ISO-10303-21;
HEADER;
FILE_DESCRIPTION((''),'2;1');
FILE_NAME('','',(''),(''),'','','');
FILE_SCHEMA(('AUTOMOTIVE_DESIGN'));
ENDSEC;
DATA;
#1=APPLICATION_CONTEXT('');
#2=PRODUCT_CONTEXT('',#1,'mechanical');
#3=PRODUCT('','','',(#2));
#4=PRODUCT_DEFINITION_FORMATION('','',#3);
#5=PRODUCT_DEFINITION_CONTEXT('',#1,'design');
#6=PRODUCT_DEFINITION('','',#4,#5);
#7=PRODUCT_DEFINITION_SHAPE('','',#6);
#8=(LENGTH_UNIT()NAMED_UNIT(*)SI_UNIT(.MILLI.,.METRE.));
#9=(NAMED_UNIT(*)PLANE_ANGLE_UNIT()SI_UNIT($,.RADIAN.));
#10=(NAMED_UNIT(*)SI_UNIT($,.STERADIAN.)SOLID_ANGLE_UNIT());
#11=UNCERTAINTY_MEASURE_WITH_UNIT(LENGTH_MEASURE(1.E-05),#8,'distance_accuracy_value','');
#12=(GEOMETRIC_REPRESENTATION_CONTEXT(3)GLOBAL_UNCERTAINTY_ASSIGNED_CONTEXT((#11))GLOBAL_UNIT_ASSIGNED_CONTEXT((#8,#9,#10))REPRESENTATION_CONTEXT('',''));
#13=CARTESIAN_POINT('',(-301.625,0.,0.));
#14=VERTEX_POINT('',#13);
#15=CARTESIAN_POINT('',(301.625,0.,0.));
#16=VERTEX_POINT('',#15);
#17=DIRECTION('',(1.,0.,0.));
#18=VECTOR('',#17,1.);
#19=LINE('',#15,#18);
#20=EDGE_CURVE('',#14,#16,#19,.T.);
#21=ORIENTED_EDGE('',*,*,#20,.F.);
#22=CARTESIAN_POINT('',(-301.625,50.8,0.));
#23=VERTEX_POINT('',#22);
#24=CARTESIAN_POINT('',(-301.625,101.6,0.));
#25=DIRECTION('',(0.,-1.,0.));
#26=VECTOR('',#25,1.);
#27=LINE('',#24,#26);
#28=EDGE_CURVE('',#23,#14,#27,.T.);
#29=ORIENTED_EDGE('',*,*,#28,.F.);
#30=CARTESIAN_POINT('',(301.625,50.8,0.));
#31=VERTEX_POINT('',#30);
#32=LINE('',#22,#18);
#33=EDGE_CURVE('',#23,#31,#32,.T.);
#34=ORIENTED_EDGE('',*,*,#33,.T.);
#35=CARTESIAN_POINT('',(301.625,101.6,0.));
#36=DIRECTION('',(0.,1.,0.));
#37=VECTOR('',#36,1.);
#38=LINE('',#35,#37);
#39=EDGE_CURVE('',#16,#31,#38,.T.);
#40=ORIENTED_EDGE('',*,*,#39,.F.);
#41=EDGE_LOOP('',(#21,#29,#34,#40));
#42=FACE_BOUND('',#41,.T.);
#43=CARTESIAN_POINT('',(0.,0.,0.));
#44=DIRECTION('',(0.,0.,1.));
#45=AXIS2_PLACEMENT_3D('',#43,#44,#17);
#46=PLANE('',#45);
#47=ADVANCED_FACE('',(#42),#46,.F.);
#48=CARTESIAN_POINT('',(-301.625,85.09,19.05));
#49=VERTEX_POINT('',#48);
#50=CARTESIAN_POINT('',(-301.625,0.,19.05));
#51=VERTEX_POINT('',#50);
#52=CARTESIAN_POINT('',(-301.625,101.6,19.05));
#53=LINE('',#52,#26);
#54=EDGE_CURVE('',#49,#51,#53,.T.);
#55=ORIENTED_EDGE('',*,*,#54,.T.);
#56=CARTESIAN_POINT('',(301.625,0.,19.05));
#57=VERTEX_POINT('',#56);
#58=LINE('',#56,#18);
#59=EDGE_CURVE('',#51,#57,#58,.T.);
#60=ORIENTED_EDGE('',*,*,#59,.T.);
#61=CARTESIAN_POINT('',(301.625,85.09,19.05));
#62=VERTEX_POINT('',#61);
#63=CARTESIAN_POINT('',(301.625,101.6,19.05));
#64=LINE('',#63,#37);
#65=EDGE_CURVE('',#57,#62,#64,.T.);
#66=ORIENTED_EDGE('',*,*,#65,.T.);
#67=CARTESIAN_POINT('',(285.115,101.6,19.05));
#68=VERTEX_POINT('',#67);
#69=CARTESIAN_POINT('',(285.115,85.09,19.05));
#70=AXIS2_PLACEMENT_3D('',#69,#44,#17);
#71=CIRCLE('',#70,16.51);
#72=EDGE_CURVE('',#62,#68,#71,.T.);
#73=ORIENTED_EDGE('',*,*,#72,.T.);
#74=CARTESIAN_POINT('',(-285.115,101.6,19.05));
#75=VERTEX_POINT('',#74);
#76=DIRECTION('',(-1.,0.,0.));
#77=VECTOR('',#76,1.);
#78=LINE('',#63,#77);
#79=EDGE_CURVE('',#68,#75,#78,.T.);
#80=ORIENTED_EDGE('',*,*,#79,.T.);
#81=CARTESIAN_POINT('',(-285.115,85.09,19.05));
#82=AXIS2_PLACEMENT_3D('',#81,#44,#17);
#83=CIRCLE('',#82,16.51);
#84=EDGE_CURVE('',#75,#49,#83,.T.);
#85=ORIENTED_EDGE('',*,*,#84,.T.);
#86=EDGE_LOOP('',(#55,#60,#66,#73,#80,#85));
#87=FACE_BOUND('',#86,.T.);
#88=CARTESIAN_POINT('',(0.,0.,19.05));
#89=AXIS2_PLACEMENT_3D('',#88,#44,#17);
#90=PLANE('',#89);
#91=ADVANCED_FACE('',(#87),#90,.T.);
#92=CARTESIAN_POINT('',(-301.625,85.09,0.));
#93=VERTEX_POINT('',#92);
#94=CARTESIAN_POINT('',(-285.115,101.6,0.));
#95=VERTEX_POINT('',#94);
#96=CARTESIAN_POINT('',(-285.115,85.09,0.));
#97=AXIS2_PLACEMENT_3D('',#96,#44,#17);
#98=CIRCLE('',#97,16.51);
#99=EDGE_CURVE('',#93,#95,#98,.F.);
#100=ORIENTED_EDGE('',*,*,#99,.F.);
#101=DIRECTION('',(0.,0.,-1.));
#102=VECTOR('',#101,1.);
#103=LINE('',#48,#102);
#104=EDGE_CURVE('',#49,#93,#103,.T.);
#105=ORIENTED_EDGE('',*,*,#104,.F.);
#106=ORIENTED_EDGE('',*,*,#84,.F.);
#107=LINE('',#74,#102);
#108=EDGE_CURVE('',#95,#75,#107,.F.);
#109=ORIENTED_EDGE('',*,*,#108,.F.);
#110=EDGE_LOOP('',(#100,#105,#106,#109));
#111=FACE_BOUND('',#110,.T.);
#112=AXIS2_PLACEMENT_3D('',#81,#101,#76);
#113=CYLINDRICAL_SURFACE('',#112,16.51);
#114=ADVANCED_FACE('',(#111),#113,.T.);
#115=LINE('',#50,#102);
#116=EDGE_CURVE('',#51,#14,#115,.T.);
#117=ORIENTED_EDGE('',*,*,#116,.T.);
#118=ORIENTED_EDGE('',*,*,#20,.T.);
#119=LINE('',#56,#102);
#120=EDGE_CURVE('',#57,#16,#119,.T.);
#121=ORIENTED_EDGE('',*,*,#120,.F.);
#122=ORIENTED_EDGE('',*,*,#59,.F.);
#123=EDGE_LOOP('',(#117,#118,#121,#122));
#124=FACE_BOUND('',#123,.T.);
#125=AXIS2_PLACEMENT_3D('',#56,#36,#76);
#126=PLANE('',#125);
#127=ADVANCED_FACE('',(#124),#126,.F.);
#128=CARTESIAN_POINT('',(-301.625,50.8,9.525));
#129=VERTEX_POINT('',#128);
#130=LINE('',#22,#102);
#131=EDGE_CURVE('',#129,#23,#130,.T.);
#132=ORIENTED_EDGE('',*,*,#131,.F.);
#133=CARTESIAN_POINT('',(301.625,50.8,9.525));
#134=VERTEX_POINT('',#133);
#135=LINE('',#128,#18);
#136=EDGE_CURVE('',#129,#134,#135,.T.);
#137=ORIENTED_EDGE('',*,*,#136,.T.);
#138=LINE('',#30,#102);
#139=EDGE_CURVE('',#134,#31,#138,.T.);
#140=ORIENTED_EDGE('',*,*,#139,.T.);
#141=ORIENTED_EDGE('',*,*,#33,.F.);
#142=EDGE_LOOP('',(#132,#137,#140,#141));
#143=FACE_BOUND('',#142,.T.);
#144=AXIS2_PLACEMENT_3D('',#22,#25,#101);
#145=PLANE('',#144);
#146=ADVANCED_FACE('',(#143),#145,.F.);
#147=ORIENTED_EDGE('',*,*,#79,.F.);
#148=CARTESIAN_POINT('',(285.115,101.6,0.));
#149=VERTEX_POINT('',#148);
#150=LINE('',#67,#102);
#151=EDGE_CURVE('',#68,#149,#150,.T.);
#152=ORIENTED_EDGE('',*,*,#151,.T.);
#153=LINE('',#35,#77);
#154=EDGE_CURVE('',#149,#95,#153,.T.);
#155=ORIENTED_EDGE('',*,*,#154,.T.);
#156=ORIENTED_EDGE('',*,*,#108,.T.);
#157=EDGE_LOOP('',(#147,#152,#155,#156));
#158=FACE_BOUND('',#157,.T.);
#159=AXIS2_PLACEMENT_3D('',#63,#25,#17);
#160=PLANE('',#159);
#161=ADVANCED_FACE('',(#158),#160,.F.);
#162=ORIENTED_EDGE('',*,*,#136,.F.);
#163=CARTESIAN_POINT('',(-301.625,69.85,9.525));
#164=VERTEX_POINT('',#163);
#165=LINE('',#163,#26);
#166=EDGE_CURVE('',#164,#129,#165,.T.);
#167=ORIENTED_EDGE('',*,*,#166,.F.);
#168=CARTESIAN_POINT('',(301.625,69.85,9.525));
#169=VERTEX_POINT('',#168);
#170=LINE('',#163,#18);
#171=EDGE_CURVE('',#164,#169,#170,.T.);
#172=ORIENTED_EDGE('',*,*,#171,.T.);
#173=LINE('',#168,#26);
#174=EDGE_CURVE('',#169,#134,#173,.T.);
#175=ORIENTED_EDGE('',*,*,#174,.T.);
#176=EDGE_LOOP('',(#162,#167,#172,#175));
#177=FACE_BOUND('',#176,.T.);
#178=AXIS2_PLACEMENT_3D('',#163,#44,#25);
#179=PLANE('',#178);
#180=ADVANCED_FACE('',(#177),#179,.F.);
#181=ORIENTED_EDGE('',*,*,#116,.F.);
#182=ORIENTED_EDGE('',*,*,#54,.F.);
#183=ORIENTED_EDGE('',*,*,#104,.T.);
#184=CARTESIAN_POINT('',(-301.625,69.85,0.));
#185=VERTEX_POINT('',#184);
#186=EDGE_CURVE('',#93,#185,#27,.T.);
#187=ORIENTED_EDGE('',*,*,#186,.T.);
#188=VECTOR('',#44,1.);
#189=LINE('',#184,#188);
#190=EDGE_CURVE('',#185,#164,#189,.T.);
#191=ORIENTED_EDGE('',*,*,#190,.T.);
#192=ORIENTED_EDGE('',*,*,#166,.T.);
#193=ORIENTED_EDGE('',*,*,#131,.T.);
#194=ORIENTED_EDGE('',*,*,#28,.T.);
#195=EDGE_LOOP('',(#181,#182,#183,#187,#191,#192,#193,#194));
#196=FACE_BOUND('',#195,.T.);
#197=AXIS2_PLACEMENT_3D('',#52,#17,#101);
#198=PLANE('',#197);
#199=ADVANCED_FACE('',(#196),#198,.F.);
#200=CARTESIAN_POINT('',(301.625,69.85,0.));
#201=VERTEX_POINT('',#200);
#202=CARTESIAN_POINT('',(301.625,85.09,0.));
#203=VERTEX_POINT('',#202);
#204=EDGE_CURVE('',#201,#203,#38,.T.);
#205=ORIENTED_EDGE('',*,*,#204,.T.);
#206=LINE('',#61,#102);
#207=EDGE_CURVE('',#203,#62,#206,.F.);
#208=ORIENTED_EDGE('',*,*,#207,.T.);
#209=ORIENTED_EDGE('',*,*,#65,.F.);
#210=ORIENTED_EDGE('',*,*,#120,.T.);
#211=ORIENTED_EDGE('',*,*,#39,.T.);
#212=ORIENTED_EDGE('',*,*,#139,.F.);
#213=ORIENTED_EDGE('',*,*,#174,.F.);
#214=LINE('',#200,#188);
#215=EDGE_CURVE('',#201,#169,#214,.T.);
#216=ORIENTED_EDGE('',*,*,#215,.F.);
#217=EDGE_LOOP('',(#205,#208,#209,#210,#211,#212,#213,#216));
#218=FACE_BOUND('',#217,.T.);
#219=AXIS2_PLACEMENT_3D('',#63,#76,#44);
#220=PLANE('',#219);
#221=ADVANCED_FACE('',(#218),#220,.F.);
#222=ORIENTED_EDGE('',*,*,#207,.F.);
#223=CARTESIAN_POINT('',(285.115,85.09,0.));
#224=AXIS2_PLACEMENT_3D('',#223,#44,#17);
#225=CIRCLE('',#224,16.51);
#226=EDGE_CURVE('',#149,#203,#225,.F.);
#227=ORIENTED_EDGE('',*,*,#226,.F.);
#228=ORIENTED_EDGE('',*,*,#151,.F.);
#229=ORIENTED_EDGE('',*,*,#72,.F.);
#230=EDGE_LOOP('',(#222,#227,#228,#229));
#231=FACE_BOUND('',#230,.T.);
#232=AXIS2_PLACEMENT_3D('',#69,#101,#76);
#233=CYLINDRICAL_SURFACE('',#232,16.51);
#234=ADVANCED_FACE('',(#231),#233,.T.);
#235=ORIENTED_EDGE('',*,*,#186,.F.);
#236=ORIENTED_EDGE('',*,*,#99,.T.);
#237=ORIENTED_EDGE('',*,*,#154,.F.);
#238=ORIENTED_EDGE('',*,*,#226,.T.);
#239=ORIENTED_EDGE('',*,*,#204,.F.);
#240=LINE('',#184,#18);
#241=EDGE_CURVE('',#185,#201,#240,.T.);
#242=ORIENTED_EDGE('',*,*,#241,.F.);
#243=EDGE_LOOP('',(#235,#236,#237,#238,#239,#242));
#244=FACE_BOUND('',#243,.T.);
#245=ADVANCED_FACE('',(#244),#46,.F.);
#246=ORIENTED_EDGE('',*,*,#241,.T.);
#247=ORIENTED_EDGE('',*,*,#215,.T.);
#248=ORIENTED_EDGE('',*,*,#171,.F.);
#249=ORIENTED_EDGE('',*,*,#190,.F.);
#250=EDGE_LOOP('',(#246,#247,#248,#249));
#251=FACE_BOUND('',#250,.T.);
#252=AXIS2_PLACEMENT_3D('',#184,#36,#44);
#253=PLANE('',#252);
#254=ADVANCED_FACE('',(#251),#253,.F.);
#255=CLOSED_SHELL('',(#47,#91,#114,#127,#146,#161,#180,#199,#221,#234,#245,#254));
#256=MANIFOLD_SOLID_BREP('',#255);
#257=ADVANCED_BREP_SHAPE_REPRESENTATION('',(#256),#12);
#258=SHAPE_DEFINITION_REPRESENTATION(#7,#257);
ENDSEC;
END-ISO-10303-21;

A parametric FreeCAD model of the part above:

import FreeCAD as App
import Part
import Sketcher

V = App.Vector
Q = App.Units.Quantity


def edges_at(feature, points):
    """Names of the edges that pass closest to the given points."""
    edges = feature.Shape.Edges
    near = lambda p: min(range(len(edges)), key=lambda i: edges[i].distToShape(Part.Vertex(*p))[0])
    return sorted({f"Edge{near(p) + 1}" for p in points})

doc = App.newDocument("Part")
params = doc.addObject("Spreadsheet::Sheet", "Params")
for row, (alias, value) in enumerate([
    ("sketch1_height", "4 in"),
    ("sketch1_width", "23.75 in"),
    ("pad1_length", "0.75 in"),
    ("sketch2_width", "0.75 in"),
    ("sketch2_height", "0.375 in"),
    ("fillet_radius", "0.65 in"),
], start=1):
    params.set(f"A{row}", alias)
    params.set(f"B{row}", "=" + value)
    params.setAlias(f"B{row}", alias)

body = doc.addObject("PartDesign::Body", "Body")

sketch1 = doc.addObject("Sketcher::SketchObject", "Sketch")
body.addObject(sketch1)
sketch1.AttachmentSupport = (doc.XY_Plane, [""])
sketch1.MapMode = "FlatFace"
sketch1.addGeometry(Part.LineSegment(V(-302, 102, 0), V(-302, 0, 0)), False)
sketch1.addGeometry(Part.LineSegment(V(-302, 0, 0), V(302, 0, 0)), False)
sketch1.addGeometry(Part.LineSegment(V(302, 0, 0), V(302, 102, 0)), False)
sketch1.addGeometry(Part.LineSegment(V(302, 102, 0), V(-302, 102, 0)), False)
sketch1.addConstraint(Sketcher.Constraint("Coincident", 0, 2, 1, 1))
sketch1.addConstraint(Sketcher.Constraint("Coincident", 1, 2, 2, 1))
sketch1.addConstraint(Sketcher.Constraint("Coincident", 2, 2, 3, 1))
sketch1.addConstraint(Sketcher.Constraint("Coincident", 3, 2, 0, 1))
sketch1.addConstraint(Sketcher.Constraint("Vertical", 0))
sketch1.addConstraint(Sketcher.Constraint("Horizontal", 1))
sketch1.addConstraint(Sketcher.Constraint("Vertical", 2))
sketch1.addConstraint(Sketcher.Constraint("Horizontal", 3))
sketch1.addConstraint(Sketcher.Constraint("Symmetric", 0, 2, 1, 2, -1, 1))
sketch1.addConstraint(Sketcher.Constraint("DistanceY", 0, 2, 0, 1, Q("4 in")))
sketch1.addConstraint(Sketcher.Constraint("DistanceX", 1, 1, 1, 2, Q("23.75 in")))
sketch1.setExpression("Constraints[9]", "Params.sketch1_height")
sketch1.setExpression("Constraints[10]", "Params.sketch1_width")
pad1 = doc.addObject("PartDesign::Pad", "Pad")
body.addObject(pad1)
pad1.Profile = sketch1
pad1.setExpression("Length", "Params.pad1_length")

sketch2 = doc.addObject("Sketcher::SketchObject", "Sketch001")
body.addObject(sketch2)
sketch2.AttachmentSupport = (doc.YZ_Plane, [""])
sketch2.MapMode = "FlatFace"
sketch2.AttachmentOffset = App.Placement(V(0, 0, 11.875 * 25.4), App.Rotation())
sketch2.addGeometry(Part.LineSegment(V(70, 10, 0), V(51, 10, 0)), False)
sketch2.addGeometry(Part.LineSegment(V(51, 10, 0), V(51, 0, 0)), False)
sketch2.addGeometry(Part.LineSegment(V(51, 0, 0), V(70, 0, 0)), False)
sketch2.addGeometry(Part.LineSegment(V(70, 0, 0), V(70, 10, 0)), False)
sketch2.addConstraint(Sketcher.Constraint("Coincident", 0, 2, 1, 1))
sketch2.addConstraint(Sketcher.Constraint("Coincident", 1, 2, 2, 1))
sketch2.addConstraint(Sketcher.Constraint("Coincident", 2, 2, 3, 1))
sketch2.addConstraint(Sketcher.Constraint("Coincident", 3, 2, 0, 1))
sketch2.addConstraint(Sketcher.Constraint("Horizontal", 0))
sketch2.addConstraint(Sketcher.Constraint("Vertical", 1))
sketch2.addConstraint(Sketcher.Constraint("Horizontal", 2))
sketch2.addConstraint(Sketcher.Constraint("Vertical", 3))
sketch2.addConstraint(Sketcher.Constraint("PointOnObject", 1, 2, -1))
sketch2.addConstraint(Sketcher.Constraint("DistanceX", -1, 1, 0, 2, Q("2 in")))
sketch2.addConstraint(Sketcher.Constraint("DistanceX", 0, 2, 0, 1, Q("0.75 in")))
sketch2.addConstraint(Sketcher.Constraint("DistanceY", 1, 2, 1, 1, Q("0.375 in")))
sketch2.setExpression("Constraints[10]", "Params.sketch2_width")
sketch2.setExpression("Constraints[11]", "Params.sketch2_height")
pocket1 = doc.addObject("PartDesign::Pocket", "Pocket")
body.addObject(pocket1)
pocket1.Profile = sketch2
pocket1.Type = "ThroughAll"
doc.recompute()

fillet = doc.addObject("PartDesign::Fillet", "Fillet")
body.addObject(fillet)
fillet.Base = (pocket1, edges_at(pocket1, [(301.625, 101.6, 9.525), (-301.625, 101.6, 9.525)]))
fillet.setExpression("Radius", "Params.fillet_radius")

doc.recompute()
